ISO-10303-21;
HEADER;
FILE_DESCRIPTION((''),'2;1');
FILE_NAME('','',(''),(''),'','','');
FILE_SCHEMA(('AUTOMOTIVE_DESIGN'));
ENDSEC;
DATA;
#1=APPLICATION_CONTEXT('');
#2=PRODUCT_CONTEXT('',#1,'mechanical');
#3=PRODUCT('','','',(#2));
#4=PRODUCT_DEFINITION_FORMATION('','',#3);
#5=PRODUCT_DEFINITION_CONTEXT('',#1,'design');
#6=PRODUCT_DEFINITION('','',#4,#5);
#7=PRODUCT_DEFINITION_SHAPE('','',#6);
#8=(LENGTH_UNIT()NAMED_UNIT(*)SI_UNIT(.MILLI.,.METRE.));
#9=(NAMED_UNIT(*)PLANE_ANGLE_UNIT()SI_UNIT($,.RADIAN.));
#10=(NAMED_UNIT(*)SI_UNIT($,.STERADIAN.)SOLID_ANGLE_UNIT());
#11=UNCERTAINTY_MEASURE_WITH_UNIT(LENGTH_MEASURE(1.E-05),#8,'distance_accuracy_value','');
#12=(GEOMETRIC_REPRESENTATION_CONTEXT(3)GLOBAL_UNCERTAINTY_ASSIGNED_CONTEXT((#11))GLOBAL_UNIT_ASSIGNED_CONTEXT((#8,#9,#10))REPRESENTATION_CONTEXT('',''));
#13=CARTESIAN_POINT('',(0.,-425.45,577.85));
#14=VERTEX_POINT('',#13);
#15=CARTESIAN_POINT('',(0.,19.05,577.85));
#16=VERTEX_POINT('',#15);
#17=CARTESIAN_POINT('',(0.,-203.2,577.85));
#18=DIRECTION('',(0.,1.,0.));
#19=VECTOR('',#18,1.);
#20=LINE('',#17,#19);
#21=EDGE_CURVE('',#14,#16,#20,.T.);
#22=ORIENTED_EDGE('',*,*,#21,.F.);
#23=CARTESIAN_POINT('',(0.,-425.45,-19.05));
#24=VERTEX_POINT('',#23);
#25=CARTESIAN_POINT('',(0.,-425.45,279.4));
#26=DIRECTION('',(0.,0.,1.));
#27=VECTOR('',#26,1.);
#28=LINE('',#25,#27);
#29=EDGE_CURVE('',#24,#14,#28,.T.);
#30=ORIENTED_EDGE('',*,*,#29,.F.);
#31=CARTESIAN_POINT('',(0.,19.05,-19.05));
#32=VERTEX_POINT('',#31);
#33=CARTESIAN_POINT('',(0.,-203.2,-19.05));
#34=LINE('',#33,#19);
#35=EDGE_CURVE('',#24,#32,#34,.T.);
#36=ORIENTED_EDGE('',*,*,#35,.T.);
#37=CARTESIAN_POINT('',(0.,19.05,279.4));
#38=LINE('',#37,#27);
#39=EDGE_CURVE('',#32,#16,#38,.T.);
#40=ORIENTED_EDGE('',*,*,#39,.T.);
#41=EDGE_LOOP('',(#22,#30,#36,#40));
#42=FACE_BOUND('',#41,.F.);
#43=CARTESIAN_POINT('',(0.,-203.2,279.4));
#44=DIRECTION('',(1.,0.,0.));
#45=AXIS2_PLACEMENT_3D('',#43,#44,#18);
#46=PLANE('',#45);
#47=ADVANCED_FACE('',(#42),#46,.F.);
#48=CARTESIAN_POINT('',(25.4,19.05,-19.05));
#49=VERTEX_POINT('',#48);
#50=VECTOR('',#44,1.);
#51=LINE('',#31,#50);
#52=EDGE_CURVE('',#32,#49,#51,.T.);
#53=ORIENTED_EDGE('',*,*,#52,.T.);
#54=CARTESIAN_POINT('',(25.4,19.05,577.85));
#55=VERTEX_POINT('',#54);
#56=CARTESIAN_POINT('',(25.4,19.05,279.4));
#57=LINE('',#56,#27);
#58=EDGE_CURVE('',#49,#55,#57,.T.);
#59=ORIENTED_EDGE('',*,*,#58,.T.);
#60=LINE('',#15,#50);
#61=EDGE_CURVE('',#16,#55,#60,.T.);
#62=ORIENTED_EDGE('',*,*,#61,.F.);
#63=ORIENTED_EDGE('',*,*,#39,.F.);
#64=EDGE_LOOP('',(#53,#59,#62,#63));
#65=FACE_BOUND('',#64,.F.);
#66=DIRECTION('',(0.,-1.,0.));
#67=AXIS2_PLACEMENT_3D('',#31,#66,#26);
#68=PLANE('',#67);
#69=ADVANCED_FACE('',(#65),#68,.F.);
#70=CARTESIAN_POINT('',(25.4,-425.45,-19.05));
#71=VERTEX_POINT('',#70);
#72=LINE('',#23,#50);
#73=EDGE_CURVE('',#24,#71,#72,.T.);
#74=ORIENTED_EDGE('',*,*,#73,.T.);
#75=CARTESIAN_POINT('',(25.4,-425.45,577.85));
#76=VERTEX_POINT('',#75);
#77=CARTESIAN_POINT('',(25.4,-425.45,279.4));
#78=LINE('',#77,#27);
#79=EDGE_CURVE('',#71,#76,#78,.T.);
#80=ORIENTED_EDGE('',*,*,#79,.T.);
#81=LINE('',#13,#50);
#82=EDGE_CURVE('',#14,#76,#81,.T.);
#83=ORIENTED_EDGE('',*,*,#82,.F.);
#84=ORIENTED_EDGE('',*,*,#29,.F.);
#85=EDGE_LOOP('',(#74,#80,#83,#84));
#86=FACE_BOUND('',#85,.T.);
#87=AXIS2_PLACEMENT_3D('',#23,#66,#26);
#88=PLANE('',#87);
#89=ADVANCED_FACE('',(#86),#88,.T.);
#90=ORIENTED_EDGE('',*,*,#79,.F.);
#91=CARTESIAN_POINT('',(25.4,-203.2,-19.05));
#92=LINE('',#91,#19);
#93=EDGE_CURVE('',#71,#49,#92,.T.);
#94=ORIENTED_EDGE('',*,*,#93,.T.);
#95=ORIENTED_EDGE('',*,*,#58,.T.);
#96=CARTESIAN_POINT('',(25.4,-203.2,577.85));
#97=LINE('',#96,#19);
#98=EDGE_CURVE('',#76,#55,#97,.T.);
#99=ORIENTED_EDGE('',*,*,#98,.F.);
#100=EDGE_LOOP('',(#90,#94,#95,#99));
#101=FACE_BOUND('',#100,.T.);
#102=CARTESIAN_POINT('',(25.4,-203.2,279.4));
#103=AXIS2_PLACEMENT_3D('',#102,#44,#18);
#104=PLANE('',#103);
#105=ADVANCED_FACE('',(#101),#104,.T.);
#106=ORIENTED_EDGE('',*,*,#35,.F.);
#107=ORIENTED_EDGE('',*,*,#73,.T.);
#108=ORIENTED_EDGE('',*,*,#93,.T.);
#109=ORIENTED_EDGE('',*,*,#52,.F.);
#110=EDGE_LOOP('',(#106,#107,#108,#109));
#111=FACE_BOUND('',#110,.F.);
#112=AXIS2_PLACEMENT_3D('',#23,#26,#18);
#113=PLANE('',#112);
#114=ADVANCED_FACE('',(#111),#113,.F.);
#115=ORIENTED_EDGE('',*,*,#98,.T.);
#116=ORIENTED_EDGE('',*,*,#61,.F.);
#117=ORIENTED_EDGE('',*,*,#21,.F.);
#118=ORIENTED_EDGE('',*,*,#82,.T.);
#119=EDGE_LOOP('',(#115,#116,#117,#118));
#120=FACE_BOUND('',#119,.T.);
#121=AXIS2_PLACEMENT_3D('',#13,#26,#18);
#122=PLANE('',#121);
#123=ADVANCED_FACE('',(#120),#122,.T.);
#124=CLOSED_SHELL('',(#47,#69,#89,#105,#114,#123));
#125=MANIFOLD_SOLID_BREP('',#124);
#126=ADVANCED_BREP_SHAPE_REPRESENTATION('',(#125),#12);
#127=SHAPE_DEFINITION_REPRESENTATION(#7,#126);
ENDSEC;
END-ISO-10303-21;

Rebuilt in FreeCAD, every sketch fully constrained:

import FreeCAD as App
import Part
import Sketcher
Q = App.Units.Quantity

doc = App.newDocument("Part")
params = doc.addObject("Spreadsheet::Sheet", "Params")
for row, (alias, value) in enumerate([
    ("sketch1_width", "17.5 in"),
    ("sketch1_height", "23.5 in"),
    ("pad1_length", "1 in"),
    ("sketch2_width", "15.5 in"),
    ("sketch2_height", "21.5 in"),
    ("pad2_length", "1 in"),
], start=1):
    params.set(f"A{row}", alias)
    params.set(f"B{row}", "=" + value)
    params.setAlias(f"B{row}", alias)

body = doc.addObject("PartDesign::Body", "Body")

# Sketch on YZ plane
sketch1 = body.newObject("Sketcher::SketchObject", "Sketch")
sketch1.AttachmentSupport = (doc.getObject("YZ_Plane"), [""])
sketch1.MapMode = "FlatFace"
sketch1.addGeometry([
    Part.LineSegment(App.Vector(-425, 578, 0), App.Vector(-425, -19, 0)),
    Part.LineSegment(App.Vector(-425, -19, 0), App.Vector(19, -19, 0)),
    Part.LineSegment(App.Vector(19, -19, 0), App.Vector(19, 578, 0)),
    Part.LineSegment(App.Vector(19, 578, 0), App.Vector(-425, 578, 0)),
], False)
sketch1.addConstraint([
    Sketcher.Constraint("Coincident", 0, 2, 1, 1),
    Sketcher.Constraint("Coincident", 1, 2, 2, 1),
    Sketcher.Constraint("Coincident", 2, 2, 3, 1),
    Sketcher.Constraint("Coincident", 3, 2, 0, 1),
    Sketcher.Constraint("Vertical", 0),
    Sketcher.Constraint("Horizontal", 1),
    Sketcher.Constraint("Vertical", 2),
    Sketcher.Constraint("Horizontal", 3),
    Sketcher.Constraint("DistanceX", 1, 1, 1, 2, Q("17.5 in")),
    Sketcher.Constraint("DistanceY", 0, 2, 0, 1, Q("23.5 in")),
    Sketcher.Constraint("DistanceX", 0, 2, -1, 1, Q("16.75 in")),
    Sketcher.Constraint("DistanceY", 0, 2, -1, 1, Q("0.75 in")),
])
sketch1.setExpression("Constraints[8]", "Params.sketch1_width")
sketch1.setExpression("Constraints[9]", "Params.sketch1_height")
pad1 = body.newObject("PartDesign::Pad", "Pad")
pad1.Profile = sketch1
pad1.setExpression("Length", "Params.pad1_length")

# Sketch on YZ plane
sketch2 = body.newObject("Sketcher::SketchObject", "Sketch001")
sketch2.AttachmentSupport = (doc.getObject("YZ_Plane"), [""])
sketch2.MapMode = "FlatFace"
sketch2.addGeometry([
    Part.LineSegment(App.Vector(-400, 552, 0), App.Vector(-400, 6, 0)),
    Part.LineSegment(App.Vector(-400, 6, 0), App.Vector(-6, 6, 0)),
    Part.LineSegment(App.Vector(-6, 6, 0), App.Vector(-6, 552, 0)),
    Part.LineSegment(App.Vector(-6, 552, 0), App.Vector(-400, 552, 0)),
], False)
sketch2.addConstraint([
    Sketcher.Constraint("Coincident", 0, 2, 1, 1),
    Sketcher.Constraint("Coincident", 1, 2, 2, 1),
    Sketcher.Constraint("Coincident", 2, 2, 3, 1),
    Sketcher.Constraint("Coincident", 3, 2, 0, 1),
    Sketcher.Constraint("Vertical", 0),
    Sketcher.Constraint("Horizontal", 1),
    Sketcher.Constraint("Vertical", 2),
    Sketcher.Constraint("Horizontal", 3),
    Sketcher.Constraint("DistanceX", 1, 1, 1, 2, Q("15.5 in")),
    Sketcher.Constraint("DistanceY", 0, 2, 0, 1, Q("21.5 in")),
    Sketcher.Constraint("DistanceX", 0, 2, -1, 1, Q("15.75 in")),
    Sketcher.Constraint("DistanceY", -1, 1, 0, 2, Q("0.25 in")),
])
sketch2.setExpression("Constraints[8]", "Params.sketch2_width")
sketch2.setExpression("Constraints[9]", "Params.sketch2_height")
pad2 = body.newObject("PartDesign::Pad", "Pad001")
pad2.Profile = sketch2
pad2.setExpression("Length", "Params.pad2_length")

doc.recompute()
